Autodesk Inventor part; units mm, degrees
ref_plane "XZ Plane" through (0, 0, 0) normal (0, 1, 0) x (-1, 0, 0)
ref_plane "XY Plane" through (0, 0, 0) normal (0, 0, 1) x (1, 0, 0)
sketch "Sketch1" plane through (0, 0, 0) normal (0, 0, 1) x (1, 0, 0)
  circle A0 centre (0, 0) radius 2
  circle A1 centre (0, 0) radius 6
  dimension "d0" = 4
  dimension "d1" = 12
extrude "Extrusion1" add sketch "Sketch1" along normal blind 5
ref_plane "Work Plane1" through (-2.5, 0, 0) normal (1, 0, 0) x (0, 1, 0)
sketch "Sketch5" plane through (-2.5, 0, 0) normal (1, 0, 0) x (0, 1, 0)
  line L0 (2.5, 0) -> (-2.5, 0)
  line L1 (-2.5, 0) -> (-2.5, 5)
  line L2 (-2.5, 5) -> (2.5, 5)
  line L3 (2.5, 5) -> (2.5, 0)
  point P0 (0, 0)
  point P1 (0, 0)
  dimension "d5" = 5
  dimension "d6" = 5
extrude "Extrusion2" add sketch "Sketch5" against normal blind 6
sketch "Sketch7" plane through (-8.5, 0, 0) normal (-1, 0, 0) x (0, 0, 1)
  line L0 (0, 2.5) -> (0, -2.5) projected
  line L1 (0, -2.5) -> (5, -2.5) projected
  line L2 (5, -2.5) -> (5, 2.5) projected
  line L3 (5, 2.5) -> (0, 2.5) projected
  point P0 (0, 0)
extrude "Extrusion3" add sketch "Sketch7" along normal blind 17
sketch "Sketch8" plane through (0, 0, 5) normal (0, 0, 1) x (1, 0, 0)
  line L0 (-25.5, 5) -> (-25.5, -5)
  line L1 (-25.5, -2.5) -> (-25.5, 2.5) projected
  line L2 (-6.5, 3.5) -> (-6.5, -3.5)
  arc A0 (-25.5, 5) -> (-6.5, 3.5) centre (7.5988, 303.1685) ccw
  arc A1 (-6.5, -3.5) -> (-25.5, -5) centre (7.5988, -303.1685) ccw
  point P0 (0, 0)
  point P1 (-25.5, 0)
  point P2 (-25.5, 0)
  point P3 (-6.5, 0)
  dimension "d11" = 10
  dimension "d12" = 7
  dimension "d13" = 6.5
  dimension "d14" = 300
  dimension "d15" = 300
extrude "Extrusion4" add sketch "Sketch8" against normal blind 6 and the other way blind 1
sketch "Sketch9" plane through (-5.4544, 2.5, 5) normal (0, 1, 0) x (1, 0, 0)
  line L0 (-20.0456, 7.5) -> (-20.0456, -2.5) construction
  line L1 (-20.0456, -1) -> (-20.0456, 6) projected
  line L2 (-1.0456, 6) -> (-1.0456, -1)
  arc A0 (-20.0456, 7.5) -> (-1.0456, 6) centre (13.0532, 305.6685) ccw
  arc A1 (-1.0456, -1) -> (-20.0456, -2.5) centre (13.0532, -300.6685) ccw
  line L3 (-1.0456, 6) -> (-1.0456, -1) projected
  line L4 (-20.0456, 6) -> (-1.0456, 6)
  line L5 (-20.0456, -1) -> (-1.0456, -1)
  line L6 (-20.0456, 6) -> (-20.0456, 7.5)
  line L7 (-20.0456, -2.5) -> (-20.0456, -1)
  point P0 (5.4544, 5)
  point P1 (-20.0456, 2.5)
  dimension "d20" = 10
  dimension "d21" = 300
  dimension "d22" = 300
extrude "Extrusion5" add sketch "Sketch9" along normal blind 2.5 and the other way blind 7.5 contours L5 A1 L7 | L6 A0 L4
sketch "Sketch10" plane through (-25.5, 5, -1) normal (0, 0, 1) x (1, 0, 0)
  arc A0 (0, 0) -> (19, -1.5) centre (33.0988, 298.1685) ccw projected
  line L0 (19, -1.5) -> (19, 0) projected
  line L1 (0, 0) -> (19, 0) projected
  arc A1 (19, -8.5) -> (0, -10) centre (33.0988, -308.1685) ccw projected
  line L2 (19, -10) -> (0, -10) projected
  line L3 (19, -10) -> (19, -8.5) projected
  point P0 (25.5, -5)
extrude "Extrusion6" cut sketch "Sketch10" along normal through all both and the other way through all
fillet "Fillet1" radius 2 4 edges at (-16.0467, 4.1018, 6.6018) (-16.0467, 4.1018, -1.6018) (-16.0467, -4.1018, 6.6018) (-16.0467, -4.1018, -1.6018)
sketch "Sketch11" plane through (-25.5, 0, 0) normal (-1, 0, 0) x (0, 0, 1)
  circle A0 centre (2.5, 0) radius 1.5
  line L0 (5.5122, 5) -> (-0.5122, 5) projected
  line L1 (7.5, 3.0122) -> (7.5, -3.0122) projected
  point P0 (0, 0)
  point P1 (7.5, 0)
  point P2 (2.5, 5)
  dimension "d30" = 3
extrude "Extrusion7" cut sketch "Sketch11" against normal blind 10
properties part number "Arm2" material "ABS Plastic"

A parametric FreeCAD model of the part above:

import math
import FreeCAD as App
import Part
import Sketcher

V = App.Vector
Q = App.Units.Quantity


def edges_at(feature, points):
    """Names of the edges that pass closest to the given points."""
    edges = feature.Shape.Edges
    near = lambda p: min(range(len(edges)), key=lambda i: edges[i].distToShape(Part.Vertex(*p))[0])
    return sorted({f"Edge{near(p) + 1}" for p in points})


def add_polygon(sketch, points):
    """Adds a closed chain of lines whose ends are joined by coincident constraints."""
    first, n = sketch.GeometryCount, len(points)
    for a, b in zip(points, points[1:] + points[:1]):
        sketch.addGeometry(Part.LineSegment(App.Vector(*a, 0), App.Vector(*b, 0)), False)
    for i in range(n):
        sketch.addConstraint(Sketcher.Constraint("Coincident", first + i, 2, first + (i + 1) % n, 1))

doc = App.newDocument("Part")
body = doc.addObject("PartDesign::Body", "Body")

sketch1 = body.newObject("Sketcher::SketchObject", "Sketch")
sketch1.AttachmentSupport = (doc.getObject("XY_Plane"), [""])
sketch1.MapMode = "FlatFace"
sketch1.addGeometry([
    Part.Circle(V(0, 0, 0), V(0, 0, 1), 6),
    Part.Circle(V(0, 0, 0), V(0, 0, 1), 2),
], False)
sketch1.addConstraint([
    Sketcher.Constraint("Coincident", 0, 3, -1, 1),
    Sketcher.Constraint("Coincident", 1, 3, -1, 1),
    Sketcher.Constraint("Diameter", 0, Q("12 mm")),
    Sketcher.Constraint("Diameter", 1, Q("4 mm")),
])
pad1 = body.newObject("PartDesign::Pad", "Pad")
pad1.Profile = sketch1
pad1.Length = 5

sketch2 = body.newObject("Sketcher::SketchObject", "Sketch001")
sketch2.AttachmentSupport = (doc.getObject("YZ_Plane"), [""])
sketch2.MapMode = "FlatFace"
sketch2.AttachmentOffset = App.Placement(V(0, 0, -2.5), App.Rotation())
add_polygon(sketch2, [(-2, 0), (2, 0), (2, 5), (-2, 5)])
sketch2.addConstraint([
    Sketcher.Constraint("Horizontal", 0),
    Sketcher.Constraint("Vertical", 1),
    Sketcher.Constraint("Horizontal", 2),
    Sketcher.Constraint("Vertical", 3),
    Sketcher.Constraint("Symmetric", 0, 2, 3, 2, -1, 1),
    Sketcher.Constraint("Equal", 2, 1),
    Sketcher.Constraint("DistanceX", 0, 1, 0, 2, Q("5 mm")),
])
pad2 = body.newObject("PartDesign::Pad", "Pad001")
pad2.Profile = sketch2
pad2.Length = 6
pad2.Reversed = True

sketch3 = body.newObject("Sketcher::SketchObject", "Sketch002")
sketch3.AttachmentSupport = (doc.getObject("YZ_Plane"), [""])
sketch3.MapMode = "FlatFace"
sketch3.AttachmentOffset = App.Placement(V(0, 0, -8.5), App.Rotation())
add_polygon(sketch3, [(2, 5), (2, 0), (-2, 0), (-2, 5)])
sketch3.addConstraint([
    Sketcher.Constraint("Vertical", 0),
    Sketcher.Constraint("Horizontal", 1),
    Sketcher.Constraint("Vertical", 2),
    Sketcher.Constraint("Horizontal", 3),
    Sketcher.Constraint("Symmetric", 0, 2, 1, 2, -1, 1),
    Sketcher.Constraint("Equal", 3, 0),
    Sketcher.Constraint("DistanceX", 1, 2, 1, 1, Q("5 mm")),
])
pad3 = body.newObject("PartDesign::Pad", "Pad002")
pad3.Profile = sketch3
pad3.Length = 17
pad3.Reversed = True

sketch4 = body.newObject("Sketcher::SketchObject", "Sketch003")
sketch4.AttachmentSupport = (doc.getObject("XY_Plane"), [""])
sketch4.MapMode = "FlatFace"
sketch4.AttachmentOffset = App.Placement(V(0, 0, 5), App.Rotation())
sketch4.addGeometry([
    Part.ArcOfCircle(Part.Circle(V(8, 303, 0), V(0, 0, 1), 300), math.radians(-96.33), math.radians(-92.69)),
    Part.LineSegment(V(-26, 5, 0), V(-26, -5, 0)),
    Part.ArcOfCircle(Part.Circle(V(8, -303, 0), V(0, 0, 1), 300), math.radians(92.69), math.radians(96.33)),
    Part.LineSegment(V(-6, -4, 0), V(-6, 4, 0)),
], False)
sketch4.addConstraint([
    Sketcher.Constraint("Coincident", 0, 1, 1, 1),
    Sketcher.Constraint("Coincident", 1, 2, 2, 2),
    Sketcher.Constraint("Coincident", 2, 1, 3, 1),
    Sketcher.Constraint("Coincident", 3, 2, 0, 2),
    Sketcher.Constraint("Vertical", 1),
    Sketcher.Constraint("Vertical", 3),
    Sketcher.Constraint("DistanceY", 1, 2, 1, 1, Q("10 mm")),
    Sketcher.Constraint("DistanceY", 3, 1, 3, 2, Q("7 mm")),
    Sketcher.Constraint("DistanceX", 2, 1, -1, 1, Q("6.5 mm")),
    Sketcher.Constraint("DistanceY", -1, 1, 0, 1, Q("5 mm")),
    Sketcher.Constraint("DistanceX", 1, 2, 3, 2, Q("19 mm")),
    Sketcher.Constraint("DistanceY", 2, 1, -1, 1, Q("3.5 mm")),
    Sketcher.Constraint("Radius", 0, Q("300.0018 mm")),
    Sketcher.Constraint("Radius", 2, Q("299.9982 mm")),
])
pad4 = body.newObject("PartDesign::Pad", "Pad003")
pad4.Profile = sketch4
pad4.Type = "TwoLengths"
pad4.Length = 6
pad4.Length2 = 1
pad4.Reversed = True

sketch5 = body.newObject("Sketcher::SketchObject", "Sketch004")
sketch5.AttachmentSupport = (doc.getObject("XZ_Plane"), [""])
sketch5.MapMode = "FlatFace"
sketch5.AttachmentOffset = App.Placement(V(0, 0, -2.5), App.Rotation())
sketch5.addGeometry([
    Part.LineSegment(V(-6.5, 6, 0), V(-25.5, 6, 0)),
    Part.LineSegment(V(-25.5, 6, 0), V(-25.5, 7.5, 0)),
    Part.ArcOfCircle(Part.Circle(V(7.6, 305.7, 0), V(0, 0, 1), 300), math.radians(-96.33), math.radians(-92.69)),
    Part.LineSegment(V(-25.5, -2.5, 0), V(-25.5, -1, 0)),
    Part.LineSegment(V(-25.5, -1, 0), V(-6.5, -1, 0)),
    Part.ArcOfCircle(Part.Circle(V(7.6, -300.7, 0), V(0, 0, 1), 300), math.radians(92.69), math.radians(96.33)),
], False)
sketch5.addConstraint([
    Sketcher.Constraint("Coincident", 0, 2, 1, 1),
    Sketcher.Constraint("Coincident", 1, 2, 2, 1),
    Sketcher.Constraint("Coincident", 2, 2, 0, 1),
    Sketcher.Constraint("Coincident", 3, 2, 4, 1),
    Sketcher.Constraint("Coincident", 4, 2, 5, 1),
    Sketcher.Constraint("Coincident", 5, 2, 3, 1),
    Sketcher.Constraint("Horizontal", 0),
    Sketcher.Constraint("Vertical", 1),
    Sketcher.Constraint("Vertical", 3),
    Sketcher.Constraint("Horizontal", 4),
    Sketcher.Constraint("Vertical", 1, 2, 3, 2),
    Sketcher.Constraint("Vertical", 2, 2, 4, 2),
    Sketcher.Constraint("Equal", 1, 3),
    Sketcher.Constraint("DistanceY", 5, 2, 1, 2, Q("10 mm")),
    Sketcher.Constraint("DistanceX", 0, 2, 0, 1, Q("19 mm")),
    Sketcher.Constraint("DistanceY", 1, 1, 1, 2, Q("1.5 mm")),
    Sketcher.Constraint("DistanceY", -1, 1, 0, 2, Q("6 mm")),
    Sketcher.Constraint("DistanceX", 0, 2, -1, 1, Q("25.5 mm")),
    Sketcher.Constraint("Radius", 2, Q("299.9982 mm")),
    Sketcher.Constraint("Radius", 5, Q("300.0018 mm")),
])
pad5 = body.newObject("PartDesign::Pad", "Pad004")
pad5.Profile = sketch5
pad5.Type = "TwoLengths"
pad5.Length = 2.5
pad5.Length2 = 7.5
pad5.Reversed = True

sketch6 = body.newObject("Sketcher::SketchObject", "Sketch005")
sketch6.AttachmentSupport = (doc.getObject("XY_Plane"), [""])
sketch6.MapMode = "FlatFace"
sketch6.AttachmentOffset = App.Placement(V(0, 0, -1), App.Rotation())
sketch6.addGeometry([
    Part.LineSegment(V(-6.5, 5, 0), V(-25.5, 5, 0)),
    Part.ArcOfCircle(Part.Circle(V(7.6, 303.2, 0), V(0, 0, 1), 300), math.radians(-96.33), math.radians(-92.69)),
    Part.LineSegment(V(-6.5, 3.5, 0), V(-6.5, 5, 0)),
    Part.LineSegment(V(-6.5, -5, 0), V(-6.5, -3.5, 0)),
    Part.ArcOfCircle(Part.Circle(V(7.6, -303.2, 0), V(0, 0, 1), 300), math.radians(92.69), math.radians(96.33)),
    Part.LineSegment(V(-25.5, -5, 0), V(-6.5, -5, 0)),
], False)
sketch6.addConstraint([
    Sketcher.Constraint("Coincident", 0, 2, 1, 1),
    Sketcher.Constraint("Coincident", 1, 2, 2, 1),
    Sketcher.Constraint("Coincident", 2, 2, 0, 1),
    Sketcher.Constraint("Coincident", 3, 2, 4, 1),
    Sketcher.Constraint("Coincident", 4, 2, 5, 1),
    Sketcher.Constraint("Coincident", 5, 2, 3, 1),
    Sketcher.Constraint("Horizontal", 0),
    Sketcher.Constraint("Vertical", 2),
    Sketcher.Constraint("Vertical", 3),
    Sketcher.Constraint("Horizontal", 5),
    Sketcher.Constraint("Symmetric", 1, 2, 3, 2, -1),
    Sketcher.Constraint("Symmetric", 0, 2, 4, 2, -1),
    Sketcher.Constraint("DistanceX", 0, 2, 0, 1, Q("19 mm")),
    Sketcher.Constraint("DistanceY", 2, 1, 2, 2, Q("1.5 mm")),
    Sketcher.Constraint("DistanceY", -1, 1, 0, 2, Q("5 mm")),
    Sketcher.Constraint("DistanceX", 0, 2, -1, 1, Q("25.5 mm")),
    Sketcher.Constraint("Radius", 1, Q("300.0018 mm")),
    Sketcher.Constraint("Radius", 4, Q("299.9982 mm")),
])
pocket1 = body.newObject("PartDesign::Pocket", "Pocket")
pocket1.Profile = sketch6
pocket1.Type = "ThroughAll"
pocket1.Midplane = True
doc.recompute()

fillet = body.newObject("PartDesign::Fillet", "Fillet")
fillet.Base = (pocket1, edges_at(pocket1, [
    (-16.047, 4.102, 6.602),
    (-16.047, 4.102, -1.602),
    (-16.047, -4.102, 6.602),
    (-16.047, -4.102, -1.602),
]))
fillet.Radius = 2

sketch7 = body.newObject("Sketcher::SketchObject", "Sketch006")
sketch7.AttachmentSupport = (doc.getObject("YZ_Plane"), [""])
sketch7.MapMode = "FlatFace"
sketch7.AttachmentOffset = App.Placement(V(0, 0, -25.5), App.Rotation())
sketch7.addGeometry(Part.Circle(V(0, 2.5, 0), V(0, 0, 1), 1.5), False)
sketch7.addConstraint([
    Sketcher.Constraint("PointOnObject", 0, 3, -2),
    Sketcher.Constraint("Diameter", 0, Q("3 mm")),
    Sketcher.Constraint("DistanceY", -1, 1, 0, 3, Q("2.5 mm")),
])
pocket2 = body.newObject("PartDesign::Pocket", "Pocket001")
pocket2.Profile = sketch7
pocket2.Length = 10
pocket2.Reversed = True

doc.recompute()
